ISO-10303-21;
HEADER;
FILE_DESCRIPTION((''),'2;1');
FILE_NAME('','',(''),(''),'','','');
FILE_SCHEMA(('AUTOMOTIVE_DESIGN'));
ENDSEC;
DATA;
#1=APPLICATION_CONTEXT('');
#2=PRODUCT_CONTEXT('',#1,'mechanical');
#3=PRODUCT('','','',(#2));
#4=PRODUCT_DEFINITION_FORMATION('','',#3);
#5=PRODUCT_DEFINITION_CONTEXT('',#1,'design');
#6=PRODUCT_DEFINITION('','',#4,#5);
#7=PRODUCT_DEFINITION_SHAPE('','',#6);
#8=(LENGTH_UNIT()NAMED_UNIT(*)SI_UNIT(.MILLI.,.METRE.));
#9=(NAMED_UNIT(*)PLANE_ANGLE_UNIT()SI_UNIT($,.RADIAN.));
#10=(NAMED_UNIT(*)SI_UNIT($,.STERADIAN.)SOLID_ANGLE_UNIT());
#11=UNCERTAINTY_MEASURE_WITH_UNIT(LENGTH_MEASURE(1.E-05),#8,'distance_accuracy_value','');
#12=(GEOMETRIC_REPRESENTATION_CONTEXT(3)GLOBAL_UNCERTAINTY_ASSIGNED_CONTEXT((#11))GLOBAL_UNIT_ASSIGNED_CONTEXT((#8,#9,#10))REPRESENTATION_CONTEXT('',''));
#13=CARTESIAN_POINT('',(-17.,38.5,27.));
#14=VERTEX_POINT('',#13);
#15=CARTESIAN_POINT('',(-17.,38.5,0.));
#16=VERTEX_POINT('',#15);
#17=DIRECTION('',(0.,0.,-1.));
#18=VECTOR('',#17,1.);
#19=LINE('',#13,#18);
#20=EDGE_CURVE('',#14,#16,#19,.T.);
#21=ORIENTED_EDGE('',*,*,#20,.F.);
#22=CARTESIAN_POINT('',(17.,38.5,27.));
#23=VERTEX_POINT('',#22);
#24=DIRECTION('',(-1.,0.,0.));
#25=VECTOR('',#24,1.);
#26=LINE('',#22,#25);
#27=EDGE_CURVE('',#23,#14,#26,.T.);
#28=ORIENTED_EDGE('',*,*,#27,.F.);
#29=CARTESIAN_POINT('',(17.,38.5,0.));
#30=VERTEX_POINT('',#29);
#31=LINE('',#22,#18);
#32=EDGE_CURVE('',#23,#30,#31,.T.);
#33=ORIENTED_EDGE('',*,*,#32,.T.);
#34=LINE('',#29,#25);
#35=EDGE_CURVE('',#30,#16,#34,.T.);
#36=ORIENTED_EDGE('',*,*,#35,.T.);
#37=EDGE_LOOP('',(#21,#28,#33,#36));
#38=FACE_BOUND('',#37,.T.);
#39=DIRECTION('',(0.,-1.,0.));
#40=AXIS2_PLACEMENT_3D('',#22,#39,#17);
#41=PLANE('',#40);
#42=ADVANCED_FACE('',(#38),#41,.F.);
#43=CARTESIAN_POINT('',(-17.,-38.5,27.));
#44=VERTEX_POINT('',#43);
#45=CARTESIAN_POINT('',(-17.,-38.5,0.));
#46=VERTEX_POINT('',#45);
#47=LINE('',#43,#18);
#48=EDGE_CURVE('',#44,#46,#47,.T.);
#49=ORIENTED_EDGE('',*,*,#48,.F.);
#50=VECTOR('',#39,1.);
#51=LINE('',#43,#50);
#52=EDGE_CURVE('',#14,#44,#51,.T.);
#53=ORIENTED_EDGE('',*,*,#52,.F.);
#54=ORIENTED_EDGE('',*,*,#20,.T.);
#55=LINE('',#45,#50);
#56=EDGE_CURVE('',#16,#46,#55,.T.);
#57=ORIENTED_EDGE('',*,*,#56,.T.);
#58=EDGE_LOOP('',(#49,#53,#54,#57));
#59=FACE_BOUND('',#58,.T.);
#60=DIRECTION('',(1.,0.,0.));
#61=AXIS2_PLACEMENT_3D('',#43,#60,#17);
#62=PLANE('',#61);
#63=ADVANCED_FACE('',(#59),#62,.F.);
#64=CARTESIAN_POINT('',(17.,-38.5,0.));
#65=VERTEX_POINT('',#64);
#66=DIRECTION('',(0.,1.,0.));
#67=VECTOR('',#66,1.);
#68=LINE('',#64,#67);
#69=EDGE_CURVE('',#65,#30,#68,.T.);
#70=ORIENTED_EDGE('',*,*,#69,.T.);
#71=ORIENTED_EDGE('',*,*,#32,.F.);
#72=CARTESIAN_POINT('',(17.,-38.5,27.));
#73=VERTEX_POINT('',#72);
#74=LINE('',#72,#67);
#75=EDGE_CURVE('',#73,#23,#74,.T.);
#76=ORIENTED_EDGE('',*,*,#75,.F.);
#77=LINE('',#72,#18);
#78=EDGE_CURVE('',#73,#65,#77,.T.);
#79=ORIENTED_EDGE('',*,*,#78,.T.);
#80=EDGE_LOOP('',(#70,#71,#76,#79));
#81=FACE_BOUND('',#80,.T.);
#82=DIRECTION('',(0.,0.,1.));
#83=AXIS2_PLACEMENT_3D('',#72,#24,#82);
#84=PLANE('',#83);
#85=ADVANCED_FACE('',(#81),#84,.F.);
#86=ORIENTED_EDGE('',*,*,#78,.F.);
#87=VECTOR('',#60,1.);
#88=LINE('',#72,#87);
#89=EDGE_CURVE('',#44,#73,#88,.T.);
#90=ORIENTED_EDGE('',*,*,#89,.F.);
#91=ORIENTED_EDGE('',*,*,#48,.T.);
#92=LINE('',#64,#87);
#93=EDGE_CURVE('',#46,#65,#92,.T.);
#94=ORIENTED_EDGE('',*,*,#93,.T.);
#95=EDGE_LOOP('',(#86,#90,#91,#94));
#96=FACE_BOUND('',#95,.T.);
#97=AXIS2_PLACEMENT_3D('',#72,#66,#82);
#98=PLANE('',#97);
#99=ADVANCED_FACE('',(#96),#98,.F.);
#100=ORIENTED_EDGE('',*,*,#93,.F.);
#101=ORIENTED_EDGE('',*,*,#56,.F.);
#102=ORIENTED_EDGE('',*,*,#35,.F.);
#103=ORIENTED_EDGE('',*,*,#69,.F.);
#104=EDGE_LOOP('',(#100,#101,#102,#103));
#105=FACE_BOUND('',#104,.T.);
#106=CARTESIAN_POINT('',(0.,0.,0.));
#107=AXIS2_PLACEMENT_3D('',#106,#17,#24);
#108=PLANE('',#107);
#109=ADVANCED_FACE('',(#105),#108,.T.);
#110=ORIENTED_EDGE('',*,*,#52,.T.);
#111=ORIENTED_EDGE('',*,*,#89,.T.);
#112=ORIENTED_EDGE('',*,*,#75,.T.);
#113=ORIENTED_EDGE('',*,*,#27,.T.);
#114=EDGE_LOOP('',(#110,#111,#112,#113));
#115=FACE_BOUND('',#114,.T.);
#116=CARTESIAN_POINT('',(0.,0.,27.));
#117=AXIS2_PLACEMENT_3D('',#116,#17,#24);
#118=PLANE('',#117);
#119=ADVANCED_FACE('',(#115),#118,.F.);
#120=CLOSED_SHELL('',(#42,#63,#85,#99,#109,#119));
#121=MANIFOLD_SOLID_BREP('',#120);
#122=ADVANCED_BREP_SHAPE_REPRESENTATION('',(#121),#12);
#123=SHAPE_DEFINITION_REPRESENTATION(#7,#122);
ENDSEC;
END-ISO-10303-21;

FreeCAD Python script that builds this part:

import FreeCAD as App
import Part
import Sketcher

V = App.Vector
Q = App.Units.Quantity

doc = App.newDocument("Part")
body = doc.addObject("PartDesign::Body", "Body")

# Sketch on XY plane
sketch1 = body.newObject("Sketcher::SketchObject", "Sketch")
sketch1.AttachmentSupport = (doc.getObject("XY_Plane"), [""])
sketch1.MapMode = "FlatFace"
sketch1.addGeometry(Part.LineSegment(V(-17, -38, 0), V(17, -38, 0)), False)
sketch1.addGeometry(Part.LineSegment(V(17, -38, 0), V(17, 38, 0)), False)
sketch1.addGeometry(Part.LineSegment(V(17, 38, 0), V(-17, 38, 0)), False)
sketch1.addGeometry(Part.LineSegment(V(-17, 38, 0), V(-17, -38, 0)), False)
sketch1.addConstraint(Sketcher.Constraint("Coincident", 0, 2, 1, 1))
sketch1.addConstraint(Sketcher.Constraint("Coincident", 1, 2, 2, 1))
sketch1.addConstraint(Sketcher.Constraint("Coincident", 2, 2, 3, 1))
sketch1.addConstraint(Sketcher.Constraint("Coincident", 3, 2, 0, 1))
sketch1.addConstraint(Sketcher.Constraint("Horizontal", 0))
sketch1.addConstraint(Sketcher.Constraint("Vertical", 1))
sketch1.addConstraint(Sketcher.Constraint("Horizontal", 2))
sketch1.addConstraint(Sketcher.Constraint("Vertical", 3))
sketch1.addConstraint(Sketcher.Constraint("Symmetric", 0, 2, 2, 2, -1, 1))
sketch1.addConstraint(Sketcher.Constraint("DistanceX", 0, 1, 0, 2, Q("34 mm")))
sketch1.addConstraint(Sketcher.Constraint("DistanceY", 1, 1, 1, 2, Q("77 mm")))
pad1 = body.newObject("PartDesign::Pad", "Pad")
pad1.Profile = sketch1
pad1.Length = 27

doc.recompute()
